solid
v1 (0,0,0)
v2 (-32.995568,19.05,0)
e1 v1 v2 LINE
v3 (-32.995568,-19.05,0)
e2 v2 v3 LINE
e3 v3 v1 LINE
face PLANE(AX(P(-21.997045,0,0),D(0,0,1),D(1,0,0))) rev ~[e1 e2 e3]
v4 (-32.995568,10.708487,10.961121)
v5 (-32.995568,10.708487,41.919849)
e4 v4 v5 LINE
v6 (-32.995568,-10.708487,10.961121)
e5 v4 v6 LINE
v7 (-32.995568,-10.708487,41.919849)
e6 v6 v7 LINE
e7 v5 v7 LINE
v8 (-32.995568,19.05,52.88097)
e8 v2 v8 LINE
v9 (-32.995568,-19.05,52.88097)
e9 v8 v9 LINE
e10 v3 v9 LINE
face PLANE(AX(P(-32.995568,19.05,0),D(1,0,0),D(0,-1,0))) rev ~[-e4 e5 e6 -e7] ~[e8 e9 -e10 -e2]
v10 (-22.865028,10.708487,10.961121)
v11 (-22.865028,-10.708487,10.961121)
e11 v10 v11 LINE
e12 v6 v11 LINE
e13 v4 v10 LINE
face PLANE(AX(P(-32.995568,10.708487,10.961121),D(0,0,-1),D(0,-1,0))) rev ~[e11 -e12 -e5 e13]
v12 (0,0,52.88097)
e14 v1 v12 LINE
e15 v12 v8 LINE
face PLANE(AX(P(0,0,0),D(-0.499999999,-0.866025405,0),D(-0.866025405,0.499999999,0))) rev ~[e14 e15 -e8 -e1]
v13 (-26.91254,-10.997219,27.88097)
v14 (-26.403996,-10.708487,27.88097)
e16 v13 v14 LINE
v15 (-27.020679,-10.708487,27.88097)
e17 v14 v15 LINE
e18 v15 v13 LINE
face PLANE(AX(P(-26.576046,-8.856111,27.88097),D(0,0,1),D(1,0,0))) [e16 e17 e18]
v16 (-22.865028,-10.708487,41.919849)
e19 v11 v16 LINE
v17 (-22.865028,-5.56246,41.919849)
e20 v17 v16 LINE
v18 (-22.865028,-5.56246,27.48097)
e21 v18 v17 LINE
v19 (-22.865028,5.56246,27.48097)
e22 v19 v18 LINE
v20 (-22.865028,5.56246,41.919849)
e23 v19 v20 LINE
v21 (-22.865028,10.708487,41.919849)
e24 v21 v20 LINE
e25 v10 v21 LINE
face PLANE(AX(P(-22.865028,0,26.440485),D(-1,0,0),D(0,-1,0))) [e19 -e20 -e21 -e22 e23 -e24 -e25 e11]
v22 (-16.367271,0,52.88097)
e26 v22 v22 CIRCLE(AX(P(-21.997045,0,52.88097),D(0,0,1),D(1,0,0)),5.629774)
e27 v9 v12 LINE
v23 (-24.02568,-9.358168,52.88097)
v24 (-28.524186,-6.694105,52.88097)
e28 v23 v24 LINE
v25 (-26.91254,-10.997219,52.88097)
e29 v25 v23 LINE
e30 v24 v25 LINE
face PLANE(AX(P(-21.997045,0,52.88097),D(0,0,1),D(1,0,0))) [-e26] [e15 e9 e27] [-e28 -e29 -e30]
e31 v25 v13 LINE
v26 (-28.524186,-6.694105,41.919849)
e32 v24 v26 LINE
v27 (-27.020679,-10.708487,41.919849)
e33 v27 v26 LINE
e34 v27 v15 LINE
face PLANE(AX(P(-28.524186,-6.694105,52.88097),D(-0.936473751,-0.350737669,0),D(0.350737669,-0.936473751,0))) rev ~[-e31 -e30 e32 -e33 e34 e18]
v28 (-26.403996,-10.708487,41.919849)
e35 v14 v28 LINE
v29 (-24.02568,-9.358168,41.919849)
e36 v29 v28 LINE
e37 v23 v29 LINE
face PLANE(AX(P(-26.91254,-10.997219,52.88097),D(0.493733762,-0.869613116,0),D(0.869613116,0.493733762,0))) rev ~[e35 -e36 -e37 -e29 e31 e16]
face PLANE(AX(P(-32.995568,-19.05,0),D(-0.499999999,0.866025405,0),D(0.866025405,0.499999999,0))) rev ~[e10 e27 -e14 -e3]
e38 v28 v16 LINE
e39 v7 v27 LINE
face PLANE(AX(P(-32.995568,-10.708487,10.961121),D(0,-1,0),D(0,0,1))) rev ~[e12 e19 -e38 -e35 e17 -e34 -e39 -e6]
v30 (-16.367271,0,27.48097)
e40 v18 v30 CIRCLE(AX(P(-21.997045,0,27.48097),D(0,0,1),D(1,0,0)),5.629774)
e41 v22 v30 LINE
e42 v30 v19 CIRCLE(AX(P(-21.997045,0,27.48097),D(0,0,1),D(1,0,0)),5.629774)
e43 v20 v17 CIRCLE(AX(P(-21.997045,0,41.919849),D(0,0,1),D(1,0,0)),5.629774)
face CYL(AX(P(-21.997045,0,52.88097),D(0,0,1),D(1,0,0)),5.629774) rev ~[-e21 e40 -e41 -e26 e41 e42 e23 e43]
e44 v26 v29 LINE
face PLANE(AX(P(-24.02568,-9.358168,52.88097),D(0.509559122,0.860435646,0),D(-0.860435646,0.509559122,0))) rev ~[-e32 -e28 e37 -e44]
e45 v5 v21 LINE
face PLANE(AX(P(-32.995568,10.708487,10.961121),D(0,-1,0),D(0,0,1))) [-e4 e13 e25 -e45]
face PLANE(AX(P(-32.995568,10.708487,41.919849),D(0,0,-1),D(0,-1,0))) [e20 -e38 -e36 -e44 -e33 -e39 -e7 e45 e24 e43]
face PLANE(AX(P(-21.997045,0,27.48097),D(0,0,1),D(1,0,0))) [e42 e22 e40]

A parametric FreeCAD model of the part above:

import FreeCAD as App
import Part
import Sketcher

V = App.Vector
Q = App.Units.Quantity

doc = App.newDocument("Part")
body = doc.addObject("PartDesign::Body", "Body")

# Sketch on XY plane
sketch1 = doc.addObject("Sketcher::SketchObject", "Sketch")
body.addObject(sketch1)
sketch1.AttachmentSupport = (doc.XY_Plane, [""])
sketch1.MapMode = "FlatFace"
sketch1.addGeometry(Part.LineSegment(V(-32.995568, -19.05, 0), V(0, 0, 0)), False)
sketch1.addGeometry(Part.LineSegment(V(0, 0, 0), V(-32.995568, 19.05, 0)), False)
sketch1.addGeometry(Part.LineSegment(V(-32.995568, 19.05, 0), V(-32.995568, -19.05, 0)), False)
sketch1.addConstraint(Sketcher.Constraint("Coincident", 0, 2, 1, 1))
sketch1.addConstraint(Sketcher.Constraint("Coincident", 1, 2, 2, 1))
sketch1.addConstraint(Sketcher.Constraint("Coincident", 2, 2, 0, 1))
sketch1.addConstraint(Sketcher.Constraint("Vertical", 2))
sketch1.addConstraint(Sketcher.Constraint("Coincident", 0, 2, -1, 1))
sketch1.addConstraint(Sketcher.Constraint("Equal", 0, 1))
sketch1.addConstraint(Sketcher.Constraint("DistanceY", 2, 2, 2, 1, Q("1.5 in")))
sketch1.addConstraint(Sketcher.Constraint("Angle", 0, Q("30 deg")))
pad1 = doc.addObject("PartDesign::Pad", "Pad")
body.addObject(pad1)
pad1.Profile = sketch1
pad1.Length = 52.88097

# Sketch on XY plane
sketch2 = doc.addObject("Sketcher::SketchObject", "Sketch001")
body.addObject(sketch2)
sketch2.AttachmentSupport = (doc.XY_Plane, [""])
sketch2.MapMode = "FlatFace"
sketch2.AttachmentOffset = App.Placement(V(0, 0, 52.88097), App.Rotation())
sketch2.addGeometry(Part.Circle(V(-21.997045, 0, 0), V(0, 0, 1), 5.629774), False)
sketch2.addConstraint(Sketcher.Constraint("PointOnObject", 0, 3, -1))
sketch2.addConstraint(Sketcher.Constraint("Diameter", 0, 11.259548))
sketch2.addConstraint(Sketcher.Constraint("DistanceX", 0, 3, -1, 1, 21.997045))
pocket1 = doc.addObject("PartDesign::Pocket", "Pocket")
body.addObject(pocket1)
pocket1.Profile = sketch2
pocket1.Length = Q("1 in")

# Sketch on YZ plane
sketch3 = doc.addObject("Sketcher::SketchObject", "Sketch002")
body.addObject(sketch3)
sketch3.AttachmentSupport = (doc.YZ_Plane, [""])
sketch3.MapMode = "FlatFace"
sketch3.AttachmentOffset = App.Placement(V(0, 0, -32.995568), App.Rotation())
sketch3.addGeometry(Part.LineSegment(V(10.708487, 41.919849, 0), V(10.708487, 10.961121, 0)), False)
sketch3.addGeometry(Part.LineSegment(V(10.708487, 10.961121, 0), V(-10.708487, 10.961121, 0)), False)
sketch3.addGeometry(Part.LineSegment(V(-10.708487, 10.961121, 0), V(-10.708487, 41.919849, 0)), False)
sketch3.addGeometry(Part.LineSegment(V(-10.708487, 41.919849, 0), V(10.708487, 41.919849, 0)), False)
sketch3.addConstraint(Sketcher.Constraint("Coincident", 0, 2, 1, 1))
sketch3.addConstraint(Sketcher.Constraint("Coincident", 1, 2, 2, 1))
sketch3.addConstraint(Sketcher.Constraint("Coincident", 2, 2, 3, 1))
sketch3.addConstraint(Sketcher.Constraint("Coincident", 3, 2, 0, 1))
sketch3.addConstraint(Sketcher.Constraint("Vertical", 0))
sketch3.addConstraint(Sketcher.Constraint("Horizontal", 1))
sketch3.addConstraint(Sketcher.Constraint("Vertical", 2))
sketch3.addConstraint(Sketcher.Constraint("Horizontal", 3))
sketch3.addConstraint(Sketcher.Constraint("DistanceY", 0, 2, 0, 1, 30.958728))
sketch3.addConstraint(Sketcher.Constraint("DistanceX", 1, 2, 1, 1, 21.416974))
sketch3.addConstraint(Sketcher.Constraint("DistanceY", -1, 1, 0, 2, 10.961121))
sketch3.addConstraint(Sketcher.Constraint("DistanceX", -1, 1, 0, 2, 10.708487))
pocket2 = doc.addObject("PartDesign::Pocket", "Pocket001")
body.addObject(pocket2)
pocket2.Profile = sketch3
pocket2.Length = 10.13054
pocket2.Reversed = True

# Sketch on XY plane
sketch4 = doc.addObject("Sketcher::SketchObject", "Sketch003")
body.addObject(sketch4)
sketch4.AttachmentSupport = (doc.XY_Plane, [""])
sketch4.MapMode = "FlatFace"
sketch4.AttachmentOffset = App.Placement(V(0, 0, 52.88097), App.Rotation())
sketch4.addGeometry(Part.LineSegment(V(-24.02568, -9.358168, 0), V(-28.524186, -6.694105, 0)), False)
sketch4.addGeometry(Part.LineSegment(V(-28.524186, -6.694105, 0), V(-26.91254, -10.997219, 0)), False)
sketch4.addGeometry(Part.LineSegment(V(-26.91254, -10.997219, 0), V(-24.02568, -9.358168, 0)), False)
sketch4.addConstraint(Sketcher.Constraint("Coincident", 0, 2, 1, 1))
sketch4.addConstraint(Sketcher.Constraint("Coincident", 1, 2, 2, 1))
sketch4.addConstraint(Sketcher.Constraint("Coincident", 2, 2, 0, 1))
sketch4.addConstraint(Sketcher.Constraint("Distance", 1, 4.595018))
sketch4.addConstraint(Sketcher.Constraint("DistanceX", 1, 2, -1, 1, 26.91254))
sketch4.addConstraint(Sketcher.Constraint("DistanceY", 1, 2, -1, 1, 10.997219))
sketch4.addConstraint(Sketcher.Constraint("DistanceX", 2, 2, -1, 1, 24.02568))
sketch4.addConstraint(Sketcher.Constraint("DistanceY", 1, 2, 2, 2, 1.639051))
sketch4.addConstraint(Sketcher.Constraint("Distance", 0, 5.228173))
pocket3 = doc.addObject("PartDesign::Pocket", "Pocket002")
body.addObject(pocket3)
pocket3.Profile = sketch4
pocket3.Length = 25

doc.recompute()
